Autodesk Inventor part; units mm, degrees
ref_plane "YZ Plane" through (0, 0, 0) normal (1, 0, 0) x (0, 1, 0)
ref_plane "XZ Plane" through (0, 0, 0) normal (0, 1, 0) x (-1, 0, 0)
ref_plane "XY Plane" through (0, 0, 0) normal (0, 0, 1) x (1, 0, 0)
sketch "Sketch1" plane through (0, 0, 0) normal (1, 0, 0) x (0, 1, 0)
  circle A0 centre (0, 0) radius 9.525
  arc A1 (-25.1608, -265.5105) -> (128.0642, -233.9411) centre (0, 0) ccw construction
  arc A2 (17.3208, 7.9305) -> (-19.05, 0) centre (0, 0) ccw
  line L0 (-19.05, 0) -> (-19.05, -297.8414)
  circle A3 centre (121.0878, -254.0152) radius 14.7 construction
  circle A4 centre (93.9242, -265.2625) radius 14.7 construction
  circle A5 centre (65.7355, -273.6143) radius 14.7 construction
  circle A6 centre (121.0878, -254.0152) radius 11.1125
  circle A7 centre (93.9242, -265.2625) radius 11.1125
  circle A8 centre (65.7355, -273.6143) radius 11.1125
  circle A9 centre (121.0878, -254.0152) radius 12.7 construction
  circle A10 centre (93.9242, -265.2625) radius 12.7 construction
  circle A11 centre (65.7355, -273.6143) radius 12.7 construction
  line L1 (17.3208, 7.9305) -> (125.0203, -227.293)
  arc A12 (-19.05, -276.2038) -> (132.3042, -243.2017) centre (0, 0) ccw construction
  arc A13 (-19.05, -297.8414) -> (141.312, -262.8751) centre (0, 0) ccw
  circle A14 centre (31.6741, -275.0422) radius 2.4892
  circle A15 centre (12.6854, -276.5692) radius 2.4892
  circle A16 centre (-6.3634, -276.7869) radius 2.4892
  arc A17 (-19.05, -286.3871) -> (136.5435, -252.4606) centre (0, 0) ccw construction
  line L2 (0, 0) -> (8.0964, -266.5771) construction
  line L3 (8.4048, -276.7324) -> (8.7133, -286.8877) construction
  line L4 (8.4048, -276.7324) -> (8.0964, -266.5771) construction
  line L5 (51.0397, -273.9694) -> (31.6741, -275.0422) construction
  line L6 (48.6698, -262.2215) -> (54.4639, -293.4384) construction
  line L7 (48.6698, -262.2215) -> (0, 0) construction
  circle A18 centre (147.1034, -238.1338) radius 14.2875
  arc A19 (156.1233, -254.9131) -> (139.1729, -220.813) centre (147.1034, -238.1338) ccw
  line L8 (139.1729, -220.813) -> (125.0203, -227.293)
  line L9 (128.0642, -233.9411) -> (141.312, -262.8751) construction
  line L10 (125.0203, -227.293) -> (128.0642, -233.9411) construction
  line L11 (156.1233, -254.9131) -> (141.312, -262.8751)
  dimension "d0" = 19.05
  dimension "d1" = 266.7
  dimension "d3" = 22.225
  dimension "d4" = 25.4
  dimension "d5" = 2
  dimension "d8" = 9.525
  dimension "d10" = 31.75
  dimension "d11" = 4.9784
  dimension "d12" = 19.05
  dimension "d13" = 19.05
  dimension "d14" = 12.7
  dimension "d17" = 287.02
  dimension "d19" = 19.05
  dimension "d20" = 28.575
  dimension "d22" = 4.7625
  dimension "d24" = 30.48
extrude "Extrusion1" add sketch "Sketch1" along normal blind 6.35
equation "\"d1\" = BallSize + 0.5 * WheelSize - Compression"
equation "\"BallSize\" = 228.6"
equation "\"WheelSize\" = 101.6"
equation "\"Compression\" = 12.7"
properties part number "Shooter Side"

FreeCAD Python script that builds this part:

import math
import FreeCAD as App
import Part
import Sketcher

V = App.Vector
Q = App.Units.Quantity

doc = App.newDocument("Part")
params = doc.addObject("Spreadsheet::Sheet", "Params")
for row, (alias, value) in enumerate([
    ("sketch1_diameter", "0.75 in"),
    ("sketch1_radius", "0.75 in"),
    ("sketch1_diameter2", "0.196 in"),
    ("sketch1_diameter3", "0.875 in"),
    ("sketch1_diameter4", "1.125 in"),
    ("pad1_length", "0.25 in"),
], start=1):
    params.set(f"A{row}", alias)
    params.set(f"B{row}", "=" + value)
    params.setAlias(f"B{row}", alias)

body = doc.addObject("PartDesign::Body", "Body")

# Sketch on YZ plane
sketch1 = doc.addObject("Sketcher::SketchObject", "Sketch")
body.addObject(sketch1)
sketch1.AttachmentSupport = (doc.YZ_Plane, [""])
sketch1.MapMode = "FlatFace"
sketch1.addGeometry([
    Part.LineSegment(V(125.0203, -227.293, 0), V(17.3208, 7.9305, 0)),  # 0
    Part.ArcOfCircle(Part.Circle(V(0, 0, 0), V(0, 0, 1), 19.050012), math.radians(24.601145), math.radians(180)),  # 1
    Part.LineSegment(V(-19.05, 0, 0), V(-19.05, -297.8414, 0)),  # 2
    Part.ArcOfCircle(Part.Circle(V(0, 0, 0), V(0, 0, 1), 298.449999), math.radians(-93.659665), math.radians(-61.739158)),  # 3
    Part.LineSegment(V(141.312, -262.8751, 0), V(156.1233, -254.9131, 0)),  # 4
    Part.ArcOfCircle(Part.Circle(V(147.1034, -238.1338, 0), V(0, 0, 1), 19.050026), math.radians(-61.739252), math.radians(114.601145)),  # 5
    Part.LineSegment(V(139.1729, -220.813, 0), V(125.0203, -227.293, 0)),  # 6
    Part.Circle(V(-6.3634, -276.7869, 0), V(0, 0, 1), 2.4892),  # 7
    Part.Circle(V(12.6854, -276.5692, 0), V(0, 0, 1), 2.4892),  # 8
    Part.Circle(V(31.6741, -275.0422, 0), V(0, 0, 1), 2.4892),  # 9
    Part.Circle(V(65.7355, -273.6143, 0), V(0, 0, 1), 11.1125),  # 10
    Part.Circle(V(93.9242, -265.2625, 0), V(0, 0, 1), 11.1125),  # 11
    Part.Circle(V(121.0878, -254.0152, 0), V(0, 0, 1), 11.1125),  # 12
    Part.Circle(V(147.1034, -238.1338, 0), V(0, 0, 1), 14.2875),  # 13
    Part.Circle(V(0, 0, 0), V(0, 0, 1), 9.525),  # 14
], False)
sketch1.addConstraint([
    Sketcher.Constraint("Tangent", 0, 2, 1, 1),
    Sketcher.Constraint("Tangent", 1, 2, 2, 1),
    Sketcher.Constraint("Coincident", 2, 2, 3, 1),
    Sketcher.Constraint("Tangent", 3, 2, 4, 1),
    Sketcher.Constraint("Tangent", 4, 2, 5, 1),
    Sketcher.Constraint("Tangent", 5, 2, 6, 1),
    Sketcher.Constraint("Coincident", 6, 2, 0, 1),
    Sketcher.Constraint("Vertical", 2),
    Sketcher.Constraint("Coincident", 1, 3, -1, 1),
    Sketcher.Constraint("Coincident", 3, 3, -1, 1),
    Sketcher.Constraint("Coincident", 14, 3, -1, 1),
    Sketcher.Constraint("Coincident", 13, 3, 5, 3),
    Sketcher.Constraint("Equal", 1, 5),
    Sketcher.Constraint("Equal", 7, 8),
    Sketcher.Constraint("Equal", 8, 9),
    Sketcher.Constraint("Equal", 10, 11),
    Sketcher.Constraint("Equal", 11, 12),
    Sketcher.Constraint("Perpendicular", 0, 6),
    Sketcher.Constraint("Diameter", 14, Q("0.75 in")),
    Sketcher.Constraint("Radius", 1, Q("0.75 in")),
    Sketcher.Constraint("Diameter", 7, Q("0.196 in")),
    Sketcher.Constraint("Diameter", 10, Q("0.875 in")),
    Sketcher.Constraint("Diameter", 13, Q("1.125 in")),
    Sketcher.Constraint("Radius", 3, Q("11.75 in")),
    Sketcher.Constraint("Angle", 0, Q("114.6012 deg")),
    Sketcher.Constraint("Angle", 4, Q("28.2608 deg")),
    Sketcher.Constraint("DistanceX", -1, 1, 9, 3, Q("1.247 in")),
    Sketcher.Constraint("DistanceX", -1, 1, 10, 3, Q("2.588 in")),
    Sketcher.Constraint("DistanceX", 7, 3, 5, 3, Q("6.042 in")),
    Sketcher.Constraint("DistanceY", 11, 3, 3, 2, Q("0.094 in")),
    Sketcher.Constraint("DistanceX", 12, 3, 5, 2, Q("0.712 in")),
    Sketcher.Constraint("DistanceX", -1, 1, 11, 3, Q("3.6978 in")),
    Sketcher.Constraint("DistanceY", 12, 3, -1, 1, Q("10.0006 in")),
    Sketcher.Constraint("DistanceY", 8, 3, 5, 3, Q("1.5132 in")),
    Sketcher.Constraint("DistanceY", 7, 3, 9, 3, Q("0.0687 in")),
    Sketcher.Constraint("DistanceY", 7, 3, 10, 3, Q("0.1249 in")),
    Sketcher.Constraint("DistanceY", 10, 3, 11, 3, Q("0.3288 in")),
    Sketcher.Constraint("DistanceX", 8, 3, 12, 3, Q("4.2678 in")),
    Sketcher.Constraint("DistanceY", 2, 2, 8, 3, Q("0.8375 in")),
])
sketch1.setExpression("Constraints[18]", "Params.sketch1_diameter")
sketch1.setExpression("Constraints[19]", "Params.sketch1_radius")
sketch1.setExpression("Constraints[20]", "Params.sketch1_diameter2")
sketch1.setExpression("Constraints[21]", "Params.sketch1_diameter3")
sketch1.setExpression("Constraints[22]", "Params.sketch1_diameter4")
pad1 = doc.addObject("PartDesign::Pad", "Pad")
body.addObject(pad1)
pad1.Profile = sketch1
pad1.setExpression("Length", "Params.pad1_length")

doc.recompute()
